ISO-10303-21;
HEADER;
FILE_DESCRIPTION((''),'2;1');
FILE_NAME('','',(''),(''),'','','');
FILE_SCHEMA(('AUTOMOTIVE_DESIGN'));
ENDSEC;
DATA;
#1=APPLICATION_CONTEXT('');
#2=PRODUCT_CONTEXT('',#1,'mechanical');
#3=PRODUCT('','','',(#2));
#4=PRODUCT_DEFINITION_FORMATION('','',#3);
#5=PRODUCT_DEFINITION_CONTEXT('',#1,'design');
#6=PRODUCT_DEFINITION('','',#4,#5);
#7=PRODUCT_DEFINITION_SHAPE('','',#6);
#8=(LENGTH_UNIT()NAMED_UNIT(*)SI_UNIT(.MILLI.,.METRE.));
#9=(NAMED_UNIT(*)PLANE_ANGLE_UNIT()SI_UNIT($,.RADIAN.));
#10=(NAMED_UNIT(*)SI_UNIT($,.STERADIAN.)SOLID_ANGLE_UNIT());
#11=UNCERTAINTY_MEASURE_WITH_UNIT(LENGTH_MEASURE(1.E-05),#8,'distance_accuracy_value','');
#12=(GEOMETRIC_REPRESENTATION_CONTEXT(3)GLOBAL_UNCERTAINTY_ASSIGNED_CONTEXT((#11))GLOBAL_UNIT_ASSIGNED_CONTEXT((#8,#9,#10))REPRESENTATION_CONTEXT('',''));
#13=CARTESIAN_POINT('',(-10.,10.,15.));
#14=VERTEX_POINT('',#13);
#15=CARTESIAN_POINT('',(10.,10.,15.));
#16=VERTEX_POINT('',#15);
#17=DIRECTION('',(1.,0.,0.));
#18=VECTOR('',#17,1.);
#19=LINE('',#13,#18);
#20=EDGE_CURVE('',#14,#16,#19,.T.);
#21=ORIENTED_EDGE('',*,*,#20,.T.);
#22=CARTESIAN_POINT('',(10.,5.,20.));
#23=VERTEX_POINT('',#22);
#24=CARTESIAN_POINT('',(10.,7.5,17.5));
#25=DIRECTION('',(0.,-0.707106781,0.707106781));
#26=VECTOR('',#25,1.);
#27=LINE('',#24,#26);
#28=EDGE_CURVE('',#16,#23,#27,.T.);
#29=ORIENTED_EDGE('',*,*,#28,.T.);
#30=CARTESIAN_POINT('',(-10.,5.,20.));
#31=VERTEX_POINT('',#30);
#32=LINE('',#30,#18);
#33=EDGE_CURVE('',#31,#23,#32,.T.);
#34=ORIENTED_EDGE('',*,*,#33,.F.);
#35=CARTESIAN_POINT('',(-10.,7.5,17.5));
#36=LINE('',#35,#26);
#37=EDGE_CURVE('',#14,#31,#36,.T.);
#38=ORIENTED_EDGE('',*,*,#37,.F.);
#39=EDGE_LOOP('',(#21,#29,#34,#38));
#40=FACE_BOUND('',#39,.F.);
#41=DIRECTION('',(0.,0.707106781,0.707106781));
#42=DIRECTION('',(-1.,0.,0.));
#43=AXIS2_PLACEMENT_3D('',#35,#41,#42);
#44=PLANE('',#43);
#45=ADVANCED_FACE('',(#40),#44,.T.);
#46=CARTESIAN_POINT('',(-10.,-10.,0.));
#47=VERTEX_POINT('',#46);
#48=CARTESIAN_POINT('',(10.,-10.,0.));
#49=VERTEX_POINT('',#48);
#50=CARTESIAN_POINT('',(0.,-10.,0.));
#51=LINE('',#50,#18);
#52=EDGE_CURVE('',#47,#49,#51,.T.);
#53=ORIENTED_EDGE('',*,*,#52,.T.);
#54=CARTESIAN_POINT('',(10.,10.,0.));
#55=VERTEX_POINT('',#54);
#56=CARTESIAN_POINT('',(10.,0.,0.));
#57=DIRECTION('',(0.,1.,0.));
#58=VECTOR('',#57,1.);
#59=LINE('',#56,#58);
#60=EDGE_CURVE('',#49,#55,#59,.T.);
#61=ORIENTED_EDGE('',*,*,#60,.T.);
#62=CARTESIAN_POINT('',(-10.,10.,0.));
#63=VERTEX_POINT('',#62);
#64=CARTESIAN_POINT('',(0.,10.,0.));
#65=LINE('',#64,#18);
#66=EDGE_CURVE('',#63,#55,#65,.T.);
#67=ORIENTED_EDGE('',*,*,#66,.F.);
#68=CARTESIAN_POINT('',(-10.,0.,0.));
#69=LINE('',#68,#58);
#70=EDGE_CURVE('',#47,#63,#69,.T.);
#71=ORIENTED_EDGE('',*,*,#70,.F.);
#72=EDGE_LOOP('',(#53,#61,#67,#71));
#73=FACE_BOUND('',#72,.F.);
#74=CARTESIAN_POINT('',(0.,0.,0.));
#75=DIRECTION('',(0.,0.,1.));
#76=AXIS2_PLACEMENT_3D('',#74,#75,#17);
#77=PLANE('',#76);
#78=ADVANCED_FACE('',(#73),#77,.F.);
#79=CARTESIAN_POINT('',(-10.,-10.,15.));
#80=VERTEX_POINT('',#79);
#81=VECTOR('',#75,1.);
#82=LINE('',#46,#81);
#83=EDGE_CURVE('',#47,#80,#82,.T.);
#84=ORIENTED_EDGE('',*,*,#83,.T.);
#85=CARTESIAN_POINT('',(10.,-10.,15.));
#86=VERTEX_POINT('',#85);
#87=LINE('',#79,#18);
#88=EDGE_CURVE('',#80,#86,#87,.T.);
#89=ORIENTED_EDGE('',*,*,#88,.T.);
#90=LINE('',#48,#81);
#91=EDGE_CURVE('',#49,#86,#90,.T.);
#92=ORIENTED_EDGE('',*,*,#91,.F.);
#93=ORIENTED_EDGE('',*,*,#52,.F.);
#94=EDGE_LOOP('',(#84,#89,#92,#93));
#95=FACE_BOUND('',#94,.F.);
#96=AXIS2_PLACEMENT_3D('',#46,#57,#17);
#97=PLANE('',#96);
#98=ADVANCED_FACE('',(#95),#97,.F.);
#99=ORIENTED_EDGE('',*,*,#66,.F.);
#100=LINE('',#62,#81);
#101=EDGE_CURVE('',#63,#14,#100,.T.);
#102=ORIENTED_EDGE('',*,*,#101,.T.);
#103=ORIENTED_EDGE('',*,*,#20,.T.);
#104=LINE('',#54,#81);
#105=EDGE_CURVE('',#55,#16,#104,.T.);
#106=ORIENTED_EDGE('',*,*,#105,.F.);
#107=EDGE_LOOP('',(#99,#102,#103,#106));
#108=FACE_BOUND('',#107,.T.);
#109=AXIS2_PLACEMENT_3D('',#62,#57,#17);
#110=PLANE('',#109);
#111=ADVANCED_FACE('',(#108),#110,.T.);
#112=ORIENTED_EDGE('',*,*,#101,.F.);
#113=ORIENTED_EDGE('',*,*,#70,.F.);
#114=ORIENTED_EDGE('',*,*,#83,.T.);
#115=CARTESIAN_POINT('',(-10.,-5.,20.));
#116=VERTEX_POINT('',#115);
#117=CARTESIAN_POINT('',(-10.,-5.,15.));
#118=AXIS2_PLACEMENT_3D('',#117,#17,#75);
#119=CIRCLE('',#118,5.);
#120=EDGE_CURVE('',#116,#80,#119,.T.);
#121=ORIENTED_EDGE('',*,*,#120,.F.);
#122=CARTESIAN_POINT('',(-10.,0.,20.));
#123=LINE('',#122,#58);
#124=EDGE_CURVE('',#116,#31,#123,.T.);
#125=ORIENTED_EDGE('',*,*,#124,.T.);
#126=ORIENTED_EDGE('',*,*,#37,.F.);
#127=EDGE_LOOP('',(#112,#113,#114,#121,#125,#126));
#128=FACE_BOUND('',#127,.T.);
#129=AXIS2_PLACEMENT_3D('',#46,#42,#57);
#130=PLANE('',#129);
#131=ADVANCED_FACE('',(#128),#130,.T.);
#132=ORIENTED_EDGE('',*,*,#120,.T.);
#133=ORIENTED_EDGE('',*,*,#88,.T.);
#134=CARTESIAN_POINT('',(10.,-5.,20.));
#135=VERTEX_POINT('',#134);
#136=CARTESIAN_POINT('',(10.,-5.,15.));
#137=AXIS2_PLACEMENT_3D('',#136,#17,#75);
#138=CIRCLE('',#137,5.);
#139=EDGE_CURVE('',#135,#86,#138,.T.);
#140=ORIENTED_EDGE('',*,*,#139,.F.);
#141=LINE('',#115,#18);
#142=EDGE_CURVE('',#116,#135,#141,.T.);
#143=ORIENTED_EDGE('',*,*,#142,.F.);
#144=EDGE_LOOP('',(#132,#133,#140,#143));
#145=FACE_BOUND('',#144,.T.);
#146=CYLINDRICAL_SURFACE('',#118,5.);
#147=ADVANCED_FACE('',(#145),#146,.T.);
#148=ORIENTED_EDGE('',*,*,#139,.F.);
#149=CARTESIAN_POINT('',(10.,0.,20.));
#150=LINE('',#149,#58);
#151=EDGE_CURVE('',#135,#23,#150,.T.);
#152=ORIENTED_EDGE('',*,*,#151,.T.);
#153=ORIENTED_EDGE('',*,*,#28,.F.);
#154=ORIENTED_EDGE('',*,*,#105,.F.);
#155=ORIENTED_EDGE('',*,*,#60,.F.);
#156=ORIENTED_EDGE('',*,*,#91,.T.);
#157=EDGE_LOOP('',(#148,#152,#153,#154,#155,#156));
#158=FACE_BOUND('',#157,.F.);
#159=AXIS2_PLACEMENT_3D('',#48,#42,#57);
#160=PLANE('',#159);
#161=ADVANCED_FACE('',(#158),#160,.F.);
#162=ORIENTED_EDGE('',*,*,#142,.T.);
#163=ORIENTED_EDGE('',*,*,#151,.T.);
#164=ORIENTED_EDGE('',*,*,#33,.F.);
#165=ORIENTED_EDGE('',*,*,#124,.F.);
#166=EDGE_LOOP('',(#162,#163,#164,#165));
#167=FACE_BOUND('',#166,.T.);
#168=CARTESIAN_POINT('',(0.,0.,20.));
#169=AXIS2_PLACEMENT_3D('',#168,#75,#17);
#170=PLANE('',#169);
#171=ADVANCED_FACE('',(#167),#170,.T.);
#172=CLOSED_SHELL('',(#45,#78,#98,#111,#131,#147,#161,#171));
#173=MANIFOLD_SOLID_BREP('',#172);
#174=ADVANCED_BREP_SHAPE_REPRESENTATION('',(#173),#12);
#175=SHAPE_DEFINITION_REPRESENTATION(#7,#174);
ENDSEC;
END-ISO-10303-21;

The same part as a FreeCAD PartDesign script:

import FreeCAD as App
import Part
import Sketcher
from FreeCAD import Vector


def edges_at(feature, points):
    """Names of the edges that pass closest to the given points."""
    edges = feature.Shape.Edges
    near = lambda p: min(range(len(edges)), key=lambda i: edges[i].distToShape(Part.Vertex(*p))[0])
    return sorted({f"Edge{near(p) + 1}" for p in points})


def add_polygon(sketch, points):
    """Adds a closed chain of lines whose ends are joined by coincident constraints."""
    first, n = sketch.GeometryCount, len(points)
    for a, b in zip(points, points[1:] + points[:1]):
        sketch.addGeometry(Part.LineSegment(App.Vector(*a, 0), App.Vector(*b, 0)), False)
    for i in range(n):
        sketch.addConstraint(Sketcher.Constraint("Coincident", first + i, 2, first + (i + 1) % n, 1))

doc = App.newDocument("Part")
body = doc.addObject("PartDesign::Body", "Body")

# Sketch on XY plane
sketch1 = doc.addObject("Sketcher::SketchObject", "Sketch")
body.addObject(sketch1)
sketch1.AttachmentSupport = (doc.XY_Plane, [""])
sketch1.MapMode = "FlatFace"
add_polygon(sketch1, [(-10, 10), (-10, -10), (10, -10), (10, 10)])  # lines 0-3
sketch1.addConstraint([
    Sketcher.Constraint("Vertical", 0),
    Sketcher.Constraint("Horizontal", 1),
    Sketcher.Constraint("Vertical", 2),
    Sketcher.Constraint("Horizontal", 3),
    Sketcher.Constraint("Symmetric", 0, 2, 2, 2, -1, 1),
    Sketcher.Constraint("Equal", 3, 0),
    Sketcher.Constraint("DistanceX", 1, 1, 1, 2, 20.0),
])
pad1 = doc.addObject("PartDesign::Pad", "Pad")
body.addObject(pad1)
pad1.Profile = sketch1
pad1.Length = 20
doc.recompute()

chamfer = doc.addObject("PartDesign::Chamfer", "Chamfer")
body.addObject(chamfer)
chamfer.Base = (pad1, edges_at(pad1, [(0, 10, 20)]))
chamfer.Size = 5
doc.recompute()

fillet = doc.addObject("PartDesign::Fillet", "Fillet")
body.addObject(fillet)
fillet.Base = (chamfer, edges_at(chamfer, [(0, -10, 20)]))
fillet.Radius = 5

doc.recompute()
